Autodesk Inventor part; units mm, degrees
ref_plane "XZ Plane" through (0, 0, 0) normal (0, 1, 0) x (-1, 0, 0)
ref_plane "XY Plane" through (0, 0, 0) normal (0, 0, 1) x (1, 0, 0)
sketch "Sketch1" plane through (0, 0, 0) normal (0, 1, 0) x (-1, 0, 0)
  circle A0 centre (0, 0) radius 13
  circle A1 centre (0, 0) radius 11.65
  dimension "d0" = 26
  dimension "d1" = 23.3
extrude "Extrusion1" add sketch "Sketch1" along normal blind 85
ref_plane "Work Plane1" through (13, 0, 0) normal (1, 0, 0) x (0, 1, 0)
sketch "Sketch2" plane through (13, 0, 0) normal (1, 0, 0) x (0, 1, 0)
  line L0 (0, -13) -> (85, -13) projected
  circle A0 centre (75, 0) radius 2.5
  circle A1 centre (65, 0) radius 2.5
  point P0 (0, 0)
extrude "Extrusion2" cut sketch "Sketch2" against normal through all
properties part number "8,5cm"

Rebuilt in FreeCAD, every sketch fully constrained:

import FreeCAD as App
import Part
import Sketcher

doc = App.newDocument("Part")
body = doc.addObject("PartDesign::Body", "Body")

# Sketch on XZ plane
sketch1 = body.newObject("Sketcher::SketchObject", "Sketch")
sketch1.AttachmentSupport = (doc.getObject("XZ_Plane"), [""])
sketch1.MapMode = "FlatFace"
sketch1.addGeometry([
    Part.Circle(App.Vector(0, 0, 0), App.Vector(0, 0, 1), 13),
    Part.Circle(App.Vector(0, 0, 0), App.Vector(0, 0, 1), 12),
], False)
sketch1.addConstraint([
    Sketcher.Constraint("Coincident", 0, 3, -1, 1),
    Sketcher.Constraint("Coincident", 1, 3, -1, 1),
    Sketcher.Constraint("Diameter", 0, 26.0),
    Sketcher.Constraint("Diameter", 1, 23.3),
])
pad1 = body.newObject("PartDesign::Pad", "Pad")
pad1.Profile = sketch1
pad1.Length = 85
pad1.Reversed = True

# Sketch on YZ plane
sketch2 = body.newObject("Sketcher::SketchObject", "Sketch001")
sketch2.AttachmentSupport = (doc.getObject("YZ_Plane"), [""])
sketch2.MapMode = "FlatFace"
sketch2.AttachmentOffset = App.Placement(App.Vector(0, 0, 13), App.Rotation())
sketch2.addGeometry([
    Part.Circle(App.Vector(75, 0, 0), App.Vector(0, 0, 1), 2.5),
    Part.Circle(App.Vector(65, 0, 0), App.Vector(0, 0, 1), 2.5),
], False)
sketch2.addConstraint([
    Sketcher.Constraint("Equal", 0, 1),
    Sketcher.Constraint("PointOnObject", 0, 3, -1),
    Sketcher.Constraint("PointOnObject", 1, 3, -1),
    Sketcher.Constraint("Diameter", 0, 5.0),
    Sketcher.Constraint("DistanceX", -1, 1, 0, 3, 75.0),
    Sketcher.Constraint("DistanceX", -1, 1, 1, 3, 65.0),
])
pocket1 = body.newObject("PartDesign::Pocket", "Pocket")
pocket1.Profile = sketch2
pocket1.Type = "ThroughAll"

doc.recompute()
